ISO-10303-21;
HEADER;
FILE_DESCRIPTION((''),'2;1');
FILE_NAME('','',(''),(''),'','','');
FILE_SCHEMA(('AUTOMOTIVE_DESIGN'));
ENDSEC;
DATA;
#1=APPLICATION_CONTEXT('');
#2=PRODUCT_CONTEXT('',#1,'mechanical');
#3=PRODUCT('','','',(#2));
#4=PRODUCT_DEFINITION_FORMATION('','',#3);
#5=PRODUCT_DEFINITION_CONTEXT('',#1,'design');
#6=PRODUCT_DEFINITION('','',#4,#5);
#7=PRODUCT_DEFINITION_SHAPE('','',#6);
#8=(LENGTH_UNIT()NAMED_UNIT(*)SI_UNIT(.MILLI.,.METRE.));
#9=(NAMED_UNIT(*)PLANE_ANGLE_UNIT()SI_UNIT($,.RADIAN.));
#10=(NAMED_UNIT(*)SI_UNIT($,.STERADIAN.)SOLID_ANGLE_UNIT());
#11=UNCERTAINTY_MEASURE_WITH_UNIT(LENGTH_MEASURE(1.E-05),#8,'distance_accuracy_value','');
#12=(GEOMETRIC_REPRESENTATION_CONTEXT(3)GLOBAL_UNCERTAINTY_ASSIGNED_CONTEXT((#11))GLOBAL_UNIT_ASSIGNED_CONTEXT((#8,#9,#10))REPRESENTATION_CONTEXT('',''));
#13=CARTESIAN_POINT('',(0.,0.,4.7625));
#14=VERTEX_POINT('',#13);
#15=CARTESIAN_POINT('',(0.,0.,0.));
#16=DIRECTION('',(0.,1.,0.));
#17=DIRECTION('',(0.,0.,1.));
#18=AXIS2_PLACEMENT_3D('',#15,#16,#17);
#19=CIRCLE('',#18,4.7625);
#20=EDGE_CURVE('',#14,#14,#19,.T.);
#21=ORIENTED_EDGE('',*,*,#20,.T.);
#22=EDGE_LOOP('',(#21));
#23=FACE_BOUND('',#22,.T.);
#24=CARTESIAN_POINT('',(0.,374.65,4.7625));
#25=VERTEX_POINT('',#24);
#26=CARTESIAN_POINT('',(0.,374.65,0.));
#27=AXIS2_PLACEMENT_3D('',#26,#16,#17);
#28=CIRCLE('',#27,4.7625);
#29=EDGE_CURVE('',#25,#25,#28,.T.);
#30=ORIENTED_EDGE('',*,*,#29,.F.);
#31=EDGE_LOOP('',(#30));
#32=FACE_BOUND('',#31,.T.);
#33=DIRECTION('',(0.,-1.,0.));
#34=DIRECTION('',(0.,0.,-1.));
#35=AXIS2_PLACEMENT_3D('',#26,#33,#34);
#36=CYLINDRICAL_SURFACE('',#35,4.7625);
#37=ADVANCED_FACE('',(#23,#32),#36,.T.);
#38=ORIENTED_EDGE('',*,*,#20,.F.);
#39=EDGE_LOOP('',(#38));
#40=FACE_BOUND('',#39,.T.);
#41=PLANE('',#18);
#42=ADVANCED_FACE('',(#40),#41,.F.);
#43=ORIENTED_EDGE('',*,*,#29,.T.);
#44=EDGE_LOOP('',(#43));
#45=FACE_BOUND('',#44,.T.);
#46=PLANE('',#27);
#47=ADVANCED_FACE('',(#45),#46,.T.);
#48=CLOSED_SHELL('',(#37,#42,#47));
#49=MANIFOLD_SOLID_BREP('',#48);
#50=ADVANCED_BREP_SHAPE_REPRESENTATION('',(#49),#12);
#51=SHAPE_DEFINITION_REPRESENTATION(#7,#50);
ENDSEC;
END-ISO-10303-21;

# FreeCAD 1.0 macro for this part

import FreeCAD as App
import Part
import Sketcher
from FreeCAD import Vector
Q = App.Units.Quantity

doc = App.newDocument("Part")
body = doc.addObject("PartDesign::Body", "Body")

# Sketch on XZ plane
sketch1 = body.newObject("Sketcher::SketchObject", "Sketch")
sketch1.AttachmentSupport = (doc.getObject("XZ_Plane"), [""])
sketch1.MapMode = "FlatFace"
sketch1.addGeometry(Part.Circle(Vector(0, 0, 0), Vector(0, 0, 1), 4.7625), False)
sketch1.addConstraint(Sketcher.Constraint("Coincident", 0, 3, -1, 1))
sketch1.addConstraint(Sketcher.Constraint("Diameter", 0, Q("0.375 in")))
pad1 = body.newObject("PartDesign::Pad", "Pad")
pad1.Profile = sketch1
pad1.Length = Q("14.75 in")
pad1.Reversed = True

doc.recompute()
